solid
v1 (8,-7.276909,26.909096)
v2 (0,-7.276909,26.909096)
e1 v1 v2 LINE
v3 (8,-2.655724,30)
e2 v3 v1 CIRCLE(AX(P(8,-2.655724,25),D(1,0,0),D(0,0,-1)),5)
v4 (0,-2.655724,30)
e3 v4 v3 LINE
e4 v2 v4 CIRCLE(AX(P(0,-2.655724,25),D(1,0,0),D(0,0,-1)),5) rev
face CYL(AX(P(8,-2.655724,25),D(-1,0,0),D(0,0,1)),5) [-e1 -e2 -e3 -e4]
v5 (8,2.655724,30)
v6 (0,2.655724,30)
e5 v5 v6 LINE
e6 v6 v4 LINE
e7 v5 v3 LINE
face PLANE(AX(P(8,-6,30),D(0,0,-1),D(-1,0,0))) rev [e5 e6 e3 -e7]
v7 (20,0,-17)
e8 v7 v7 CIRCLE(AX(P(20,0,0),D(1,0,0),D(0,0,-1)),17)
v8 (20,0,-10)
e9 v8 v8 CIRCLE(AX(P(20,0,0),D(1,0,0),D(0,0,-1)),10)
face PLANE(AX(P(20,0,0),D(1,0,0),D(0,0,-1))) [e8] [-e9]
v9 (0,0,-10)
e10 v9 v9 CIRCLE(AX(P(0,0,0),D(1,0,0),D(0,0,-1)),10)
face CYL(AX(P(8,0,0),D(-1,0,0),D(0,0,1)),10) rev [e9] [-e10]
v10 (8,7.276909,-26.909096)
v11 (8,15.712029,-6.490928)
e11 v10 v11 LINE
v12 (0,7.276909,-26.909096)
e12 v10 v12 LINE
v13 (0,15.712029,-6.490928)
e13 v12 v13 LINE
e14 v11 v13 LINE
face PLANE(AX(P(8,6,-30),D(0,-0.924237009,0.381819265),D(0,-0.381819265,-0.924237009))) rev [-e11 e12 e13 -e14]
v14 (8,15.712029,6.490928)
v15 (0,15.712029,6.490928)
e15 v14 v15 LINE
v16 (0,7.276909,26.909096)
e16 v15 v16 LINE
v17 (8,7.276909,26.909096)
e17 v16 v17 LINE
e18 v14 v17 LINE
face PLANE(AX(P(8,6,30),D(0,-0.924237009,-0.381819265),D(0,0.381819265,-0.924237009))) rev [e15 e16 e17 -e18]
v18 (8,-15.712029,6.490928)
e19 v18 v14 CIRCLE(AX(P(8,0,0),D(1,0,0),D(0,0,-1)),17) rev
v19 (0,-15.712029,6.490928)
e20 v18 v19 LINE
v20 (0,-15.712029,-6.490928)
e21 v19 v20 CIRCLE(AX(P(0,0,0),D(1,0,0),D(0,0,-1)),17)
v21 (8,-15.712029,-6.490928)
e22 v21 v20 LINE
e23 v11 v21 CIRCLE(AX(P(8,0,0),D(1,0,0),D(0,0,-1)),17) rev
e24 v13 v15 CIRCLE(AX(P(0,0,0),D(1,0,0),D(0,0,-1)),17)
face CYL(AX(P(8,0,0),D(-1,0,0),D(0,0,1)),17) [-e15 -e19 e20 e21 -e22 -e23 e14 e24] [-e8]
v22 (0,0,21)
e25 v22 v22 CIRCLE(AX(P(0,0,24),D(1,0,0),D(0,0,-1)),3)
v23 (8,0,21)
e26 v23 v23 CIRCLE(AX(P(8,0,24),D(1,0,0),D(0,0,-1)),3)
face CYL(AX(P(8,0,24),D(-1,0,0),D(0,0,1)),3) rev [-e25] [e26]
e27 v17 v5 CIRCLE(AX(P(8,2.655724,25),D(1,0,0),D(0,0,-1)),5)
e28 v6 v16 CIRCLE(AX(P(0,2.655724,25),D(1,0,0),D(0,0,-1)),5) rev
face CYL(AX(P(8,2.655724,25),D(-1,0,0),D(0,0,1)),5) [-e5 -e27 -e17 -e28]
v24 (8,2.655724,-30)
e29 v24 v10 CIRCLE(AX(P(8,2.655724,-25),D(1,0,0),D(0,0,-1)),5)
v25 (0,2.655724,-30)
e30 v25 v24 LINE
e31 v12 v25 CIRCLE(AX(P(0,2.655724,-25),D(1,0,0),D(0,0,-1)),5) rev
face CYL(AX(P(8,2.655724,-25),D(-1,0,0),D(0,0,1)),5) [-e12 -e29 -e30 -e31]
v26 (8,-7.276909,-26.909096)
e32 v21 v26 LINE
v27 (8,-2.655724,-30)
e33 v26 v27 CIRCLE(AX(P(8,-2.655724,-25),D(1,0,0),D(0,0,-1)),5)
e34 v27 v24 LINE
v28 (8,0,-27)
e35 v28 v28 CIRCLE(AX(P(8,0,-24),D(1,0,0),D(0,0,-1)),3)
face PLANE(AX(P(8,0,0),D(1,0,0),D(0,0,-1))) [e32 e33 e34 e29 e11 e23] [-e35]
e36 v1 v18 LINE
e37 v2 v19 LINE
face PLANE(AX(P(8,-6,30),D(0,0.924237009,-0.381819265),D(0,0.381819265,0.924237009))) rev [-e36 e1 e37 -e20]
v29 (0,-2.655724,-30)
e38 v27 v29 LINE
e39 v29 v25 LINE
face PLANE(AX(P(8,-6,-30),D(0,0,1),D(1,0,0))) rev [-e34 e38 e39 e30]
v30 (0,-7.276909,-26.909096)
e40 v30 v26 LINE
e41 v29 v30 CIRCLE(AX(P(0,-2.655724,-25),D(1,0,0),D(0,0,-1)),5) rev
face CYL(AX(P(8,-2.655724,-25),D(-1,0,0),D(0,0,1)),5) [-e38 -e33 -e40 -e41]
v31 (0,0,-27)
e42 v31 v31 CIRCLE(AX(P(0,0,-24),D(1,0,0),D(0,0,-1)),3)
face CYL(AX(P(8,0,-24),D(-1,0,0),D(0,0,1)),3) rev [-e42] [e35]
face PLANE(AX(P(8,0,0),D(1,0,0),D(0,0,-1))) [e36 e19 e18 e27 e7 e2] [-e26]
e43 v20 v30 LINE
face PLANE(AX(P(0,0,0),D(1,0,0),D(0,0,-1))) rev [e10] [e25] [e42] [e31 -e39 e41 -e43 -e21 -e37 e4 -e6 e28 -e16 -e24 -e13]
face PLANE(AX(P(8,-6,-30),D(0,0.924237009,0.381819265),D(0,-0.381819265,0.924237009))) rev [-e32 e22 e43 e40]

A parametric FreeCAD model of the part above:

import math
import FreeCAD as App
import Part
import Sketcher
from FreeCAD import Vector


def edges_at(feature, points):
    """Names of the edges that pass closest to the given points."""
    edges = feature.Shape.Edges
    near = lambda p: min(range(len(edges)), key=lambda i: edges[i].distToShape(Part.Vertex(*p))[0])
    return sorted({f"Edge{near(p) + 1}" for p in points})

doc = App.newDocument("Part")
body = doc.addObject("PartDesign::Body", "Body")

# Sketch on YZ plane
sketch1 = body.newObject("Sketcher::SketchObject", "Sketch")
sketch1.AttachmentSupport = (doc.getObject("YZ_Plane"), [""])
sketch1.MapMode = "FlatFace"
sketch1.addGeometry(Part.LineSegment(Vector(-6, -30, 0), Vector(6, -30, 0)), False)
sketch1.addGeometry(Part.LineSegment(Vector(6, -30, 0), Vector(15.712029, -6.490928, 0)), False)
sketch1.addGeometry(Part.ArcOfCircle(Part.Circle(Vector(0, 0, 0), Vector(0, 0, 1), 17), math.radians(-22.446418), math.radians(22.446418)), False)
sketch1.addGeometry(Part.LineSegment(Vector(15.712029, 6.490928, 0), Vector(6, 30, 0)), False)
sketch1.addGeometry(Part.LineSegment(Vector(6, 30, 0), Vector(-6, 30, 0)), False)
sketch1.addGeometry(Part.LineSegment(Vector(-6, 30, 0), Vector(-15.712029, 6.490928, 0)), False)
sketch1.addGeometry(Part.ArcOfCircle(Part.Circle(Vector(0, 0, 0), Vector(0, 0, 1), 17), math.radians(157.553582), math.radians(202.446418)), False)
sketch1.addGeometry(Part.LineSegment(Vector(-15.712029, -6.490928, 0), Vector(-6, -30, 0)), False)
sketch1.addGeometry(Part.Circle(Vector(0, 24, 0), Vector(0, 0, 1), 3), False)
sketch1.addGeometry(Part.Circle(Vector(0, 0, 0), Vector(0, 0, 1), 10), False)
sketch1.addGeometry(Part.Circle(Vector(0, -24, 0), Vector(0, 0, 1), 3), False)
sketch1.addConstraint(Sketcher.Constraint("Coincident", 0, 2, 1, 1))
sketch1.addConstraint(Sketcher.Constraint("Tangent", 1, 2, 2, 1))
sketch1.addConstraint(Sketcher.Constraint("Tangent", 2, 2, 3, 1))
sketch1.addConstraint(Sketcher.Constraint("Coincident", 3, 2, 4, 1))
sketch1.addConstraint(Sketcher.Constraint("Coincident", 4, 2, 5, 1))
sketch1.addConstraint(Sketcher.Constraint("Tangent", 5, 2, 6, 1))
sketch1.addConstraint(Sketcher.Constraint("Tangent", 6, 2, 7, 1))
sketch1.addConstraint(Sketcher.Constraint("Coincident", 7, 2, 0, 1))
sketch1.addConstraint(Sketcher.Constraint("Horizontal", 0))
sketch1.addConstraint(Sketcher.Constraint("Horizontal", 4))
sketch1.addConstraint(Sketcher.Constraint("Coincident", 2, 3, -1, 1))
sketch1.addConstraint(Sketcher.Constraint("Coincident", 6, 3, -1, 1))
sketch1.addConstraint(Sketcher.Constraint("Coincident", 9, 3, -1, 1))
sketch1.addConstraint(Sketcher.Constraint("Equal", 2, 6))
sketch1.addConstraint(Sketcher.Constraint("Equal", 8, 10))
sketch1.addConstraint(Sketcher.Constraint("Symmetric", 8, 3, 10, 3, -1, 1))
sketch1.addConstraint(Sketcher.Constraint("Symmetric", 0, 2, 4, 2, -1, 1))
sketch1.addConstraint(Sketcher.Constraint("PointOnObject", 8, 3, -2))
sketch1.addConstraint(Sketcher.Constraint("Parallel", 3, 7))
sketch1.addConstraint(Sketcher.Constraint("Horizontal", 2, 2, 5, 2))
sketch1.addConstraint(Sketcher.Constraint("Diameter", 8, 6.0))
sketch1.addConstraint(Sketcher.Constraint("Diameter", 9, 20.0))
sketch1.addConstraint(Sketcher.Constraint("Radius", 2, 17.0))
sketch1.addConstraint(Sketcher.Constraint("DistanceX", 0, 1, 0, 2, 12.0))
sketch1.addConstraint(Sketcher.Constraint("DistanceY", -1, 1, 8, 3, 24.0))
sketch1.addConstraint(Sketcher.Constraint("DistanceY", 0, 2, -1, 1, 30.0))
pad1 = body.newObject("PartDesign::Pad", "Pad")
pad1.Profile = sketch1
pad1.Length = 8

# Sketch on YZ plane
sketch2 = body.newObject("Sketcher::SketchObject", "Sketch001")
sketch2.AttachmentSupport = (doc.getObject("YZ_Plane"), [""])
sketch2.MapMode = "FlatFace"
sketch2.addGeometry(Part.Circle(Vector(0, 0, 0), Vector(0, 0, 1), 17), False)
sketch2.addGeometry(Part.Circle(Vector(0, 0, 0), Vector(0, 0, 1), 10), False)
sketch2.addConstraint(Sketcher.Constraint("Coincident", 0, 3, -1, 1))
sketch2.addConstraint(Sketcher.Constraint("Coincident", 1, 3, -1, 1))
sketch2.addConstraint(Sketcher.Constraint("Diameter", 0, 34.0))
sketch2.addConstraint(Sketcher.Constraint("Diameter", 1, 20.0))
pad2 = body.newObject("PartDesign::Pad", "Pad001")
pad2.Profile = sketch2
pad2.Length = 20
doc.recompute()

fillet = body.newObject("PartDesign::Fillet", "Fillet")
fillet.Base = (pad2, edges_at(pad2, [
    (4, 6, -30),
    (4, -6, -30),
    (4, -6, 30),
    (4, 6, 30),
]))
fillet.Radius = 5

doc.recompute()
